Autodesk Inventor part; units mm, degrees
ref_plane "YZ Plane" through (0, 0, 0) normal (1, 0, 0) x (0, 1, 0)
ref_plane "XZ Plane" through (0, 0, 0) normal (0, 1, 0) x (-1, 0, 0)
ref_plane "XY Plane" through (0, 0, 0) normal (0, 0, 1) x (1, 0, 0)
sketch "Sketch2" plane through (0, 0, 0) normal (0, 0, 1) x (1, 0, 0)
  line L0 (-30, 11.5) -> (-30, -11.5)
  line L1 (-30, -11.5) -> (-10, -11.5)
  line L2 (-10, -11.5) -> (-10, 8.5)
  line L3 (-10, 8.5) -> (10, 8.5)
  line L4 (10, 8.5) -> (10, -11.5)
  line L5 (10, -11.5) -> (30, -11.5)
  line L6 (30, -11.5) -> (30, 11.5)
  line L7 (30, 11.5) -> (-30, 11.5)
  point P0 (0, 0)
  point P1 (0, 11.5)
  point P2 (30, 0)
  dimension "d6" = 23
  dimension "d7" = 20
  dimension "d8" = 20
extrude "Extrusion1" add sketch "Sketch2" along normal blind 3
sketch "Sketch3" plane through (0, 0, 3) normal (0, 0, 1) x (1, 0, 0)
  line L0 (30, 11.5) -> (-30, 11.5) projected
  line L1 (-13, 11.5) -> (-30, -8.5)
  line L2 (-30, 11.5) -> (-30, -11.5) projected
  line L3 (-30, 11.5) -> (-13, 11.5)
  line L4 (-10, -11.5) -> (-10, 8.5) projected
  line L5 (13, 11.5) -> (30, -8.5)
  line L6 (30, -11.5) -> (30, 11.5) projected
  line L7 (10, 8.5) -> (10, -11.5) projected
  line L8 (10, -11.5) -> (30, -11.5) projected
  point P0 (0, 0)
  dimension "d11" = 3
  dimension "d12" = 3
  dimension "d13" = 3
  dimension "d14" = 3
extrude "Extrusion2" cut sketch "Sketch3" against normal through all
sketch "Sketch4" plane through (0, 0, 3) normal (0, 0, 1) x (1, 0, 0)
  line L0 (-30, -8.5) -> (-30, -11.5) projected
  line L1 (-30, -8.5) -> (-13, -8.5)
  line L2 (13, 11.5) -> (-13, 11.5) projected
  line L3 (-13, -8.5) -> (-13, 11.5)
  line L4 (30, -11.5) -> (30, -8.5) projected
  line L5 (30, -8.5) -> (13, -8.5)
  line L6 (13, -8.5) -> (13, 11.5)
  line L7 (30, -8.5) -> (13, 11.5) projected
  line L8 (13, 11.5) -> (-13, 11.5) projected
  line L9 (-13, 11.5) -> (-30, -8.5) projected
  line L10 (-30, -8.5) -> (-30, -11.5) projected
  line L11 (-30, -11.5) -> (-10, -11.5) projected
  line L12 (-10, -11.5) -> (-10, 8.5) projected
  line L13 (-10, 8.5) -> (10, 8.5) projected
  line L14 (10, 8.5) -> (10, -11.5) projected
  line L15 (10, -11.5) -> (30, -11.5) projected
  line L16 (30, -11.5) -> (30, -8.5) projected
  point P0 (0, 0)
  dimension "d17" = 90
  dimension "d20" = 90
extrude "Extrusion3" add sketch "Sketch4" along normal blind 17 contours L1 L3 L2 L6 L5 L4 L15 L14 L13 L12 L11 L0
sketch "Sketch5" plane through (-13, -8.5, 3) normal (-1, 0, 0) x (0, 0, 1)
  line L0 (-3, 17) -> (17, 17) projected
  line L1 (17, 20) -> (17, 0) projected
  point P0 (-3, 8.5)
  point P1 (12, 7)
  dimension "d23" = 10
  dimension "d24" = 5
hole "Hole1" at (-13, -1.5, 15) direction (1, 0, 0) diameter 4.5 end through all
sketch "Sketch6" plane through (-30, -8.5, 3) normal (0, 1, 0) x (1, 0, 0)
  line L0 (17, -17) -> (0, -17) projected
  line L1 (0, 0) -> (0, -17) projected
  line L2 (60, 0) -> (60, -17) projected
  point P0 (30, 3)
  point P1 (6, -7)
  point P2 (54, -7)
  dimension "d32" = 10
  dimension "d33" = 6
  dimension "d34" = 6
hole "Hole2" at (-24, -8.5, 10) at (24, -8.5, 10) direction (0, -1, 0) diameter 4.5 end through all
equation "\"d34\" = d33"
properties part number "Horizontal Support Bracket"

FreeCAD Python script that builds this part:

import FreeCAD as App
import Part
import Sketcher
from FreeCAD import Vector

doc = App.newDocument("Part")
params = doc.addObject("Spreadsheet::Sheet", "Params")
for row, (alias, value) in enumerate([
    ("sketch1_width", "20 mm"),
    ("sketch1_height", "23 mm"),
    ("pad1_length", "3 mm"),
    ("sketch2_width", "17 mm"),
    ("sketch2_height", "20 mm"),
    ("sketch3_width", "17 mm"),
    ("sketch3_width2", "20 mm"),
    ("sketch3_height", "3 mm"),
    ("pad2_length", "17 mm"),
    ("sketch4_diameter", "4.5 mm"),
    ("hole_diameter", "4.5 mm"),
    ("sketch5_diameter", "4.5 mm"),
    ("hole2_diameter", "4.5 mm"),
], start=1):
    params.set(f"A{row}", alias)
    params.set(f"B{row}", "=" + value)
    params.setAlias(f"B{row}", alias)

body = doc.addObject("PartDesign::Body", "Body")

# Sketch on XY plane
sketch1 = body.newObject("Sketcher::SketchObject", "Sketch")
sketch1.AttachmentSupport = (doc.getObject("XY_Plane"), [""])
sketch1.MapMode = "FlatFace"
sketch1.addGeometry(Part.LineSegment(Vector(30, 12, 0), Vector(-30, 12, 0)), False)
sketch1.addGeometry(Part.LineSegment(Vector(-30, 12, 0), Vector(-30, -12, 0)), False)
sketch1.addGeometry(Part.LineSegment(Vector(-30, -12, 0), Vector(-10, -12, 0)), False)
sketch1.addGeometry(Part.LineSegment(Vector(-10, -12, 0), Vector(-10, 8, 0)), False)
sketch1.addGeometry(Part.LineSegment(Vector(-10, 8, 0), Vector(10, 8, 0)), False)
sketch1.addGeometry(Part.LineSegment(Vector(10, 8, 0), Vector(10, -12, 0)), False)
sketch1.addGeometry(Part.LineSegment(Vector(10, -12, 0), Vector(30, -12, 0)), False)
sketch1.addGeometry(Part.LineSegment(Vector(30, -12, 0), Vector(30, 12, 0)), False)
sketch1.addConstraint(Sketcher.Constraint("Coincident", 0, 2, 1, 1))
sketch1.addConstraint(Sketcher.Constraint("Coincident", 1, 2, 2, 1))
sketch1.addConstraint(Sketcher.Constraint("Coincident", 2, 2, 3, 1))
sketch1.addConstraint(Sketcher.Constraint("Coincident", 3, 2, 4, 1))
sketch1.addConstraint(Sketcher.Constraint("Coincident", 4, 2, 5, 1))
sketch1.addConstraint(Sketcher.Constraint("Coincident", 5, 2, 6, 1))
sketch1.addConstraint(Sketcher.Constraint("Coincident", 6, 2, 7, 1))
sketch1.addConstraint(Sketcher.Constraint("Coincident", 7, 2, 0, 1))
sketch1.addConstraint(Sketcher.Constraint("Horizontal", 0))
sketch1.addConstraint(Sketcher.Constraint("Vertical", 1))
sketch1.addConstraint(Sketcher.Constraint("Horizontal", 2))
sketch1.addConstraint(Sketcher.Constraint("Vertical", 3))
sketch1.addConstraint(Sketcher.Constraint("Horizontal", 4))
sketch1.addConstraint(Sketcher.Constraint("Vertical", 5))
sketch1.addConstraint(Sketcher.Constraint("Horizontal", 6))
sketch1.addConstraint(Sketcher.Constraint("Vertical", 7))
sketch1.addConstraint(Sketcher.Constraint("Symmetric", 0, 2, 6, 2, -1, 1))
sketch1.addConstraint(Sketcher.Constraint("Symmetric", 2, 2, 5, 2, -2))
sketch1.addConstraint(Sketcher.Constraint("Equal", 2, 4))
sketch1.addConstraint(Sketcher.Constraint("Equal", 6, 3))
sketch1.addConstraint(Sketcher.Constraint("DistanceX", 2, 1, 2, 2, 20.0))
sketch1.addConstraint(Sketcher.Constraint("DistanceY", 1, 2, 1, 1, 23.0))
sketch1.setExpression("Constraints[20]", "Params.sketch1_width")
sketch1.setExpression("Constraints[21]", "Params.sketch1_height")
pad1 = body.newObject("PartDesign::Pad", "Pad")
pad1.Profile = sketch1
pad1.setExpression("Length", "Params.pad1_length")

# Sketch on XY plane
sketch2 = body.newObject("Sketcher::SketchObject", "Sketch001")
sketch2.AttachmentSupport = (doc.getObject("XY_Plane"), [""])
sketch2.MapMode = "FlatFace"
sketch2.AttachmentOffset = App.Placement(Vector(0, 0, 3), App.Rotation())
sketch2.addGeometry(Part.LineSegment(Vector(30, -8, 0), Vector(30, 12, 0)), False)
sketch2.addGeometry(Part.LineSegment(Vector(30, 12, 0), Vector(13, 12, 0)), False)
sketch2.addGeometry(Part.LineSegment(Vector(13, 12, 0), Vector(30, -8, 0)), False)
sketch2.addGeometry(Part.LineSegment(Vector(-30, -8, 0), Vector(-13, 12, 0)), False)
sketch2.addGeometry(Part.LineSegment(Vector(-13, 12, 0), Vector(-30, 12, 0)), False)
sketch2.addGeometry(Part.LineSegment(Vector(-30, 12, 0), Vector(-30, -8, 0)), False)
sketch2.addConstraint(Sketcher.Constraint("Coincident", 0, 2, 1, 1))
sketch2.addConstraint(Sketcher.Constraint("Coincident", 1, 2, 2, 1))
sketch2.addConstraint(Sketcher.Constraint("Coincident", 2, 2, 0, 1))
sketch2.addConstraint(Sketcher.Constraint("Coincident", 3, 2, 4, 1))
sketch2.addConstraint(Sketcher.Constraint("Coincident", 4, 2, 5, 1))
sketch2.addConstraint(Sketcher.Constraint("Coincident", 5, 2, 3, 1))
sketch2.addConstraint(Sketcher.Constraint("Vertical", 0))
sketch2.addConstraint(Sketcher.Constraint("Horizontal", 1))
sketch2.addConstraint(Sketcher.Constraint("Horizontal", 4))
sketch2.addConstraint(Sketcher.Constraint("Vertical", 5))
sketch2.addConstraint(Sketcher.Constraint("Symmetric", 1, 2, 3, 2, -2))
sketch2.addConstraint(Sketcher.Constraint("Symmetric", 2, 2, 5, 2, -2))
sketch2.addConstraint(Sketcher.Constraint("DistanceX", 1, 2, 1, 1, 17.0))
sketch2.addConstraint(Sketcher.Constraint("DistanceY", 0, 1, 0, 2, 20.0))
sketch2.addConstraint(Sketcher.Constraint("DistanceX", -1, 1, 0, 2, 30.0))
sketch2.addConstraint(Sketcher.Constraint("DistanceY", -1, 1, 0, 2, 11.5))
sketch2.setExpression("Constraints[12]", "Params.sketch2_width")
sketch2.setExpression("Constraints[13]", "Params.sketch2_height")
pocket1 = body.newObject("PartDesign::Pocket", "Pocket")
pocket1.Profile = sketch2
pocket1.Type = "ThroughAll"

# Sketch on XY plane
sketch3 = body.newObject("Sketcher::SketchObject", "Sketch002")
sketch3.AttachmentSupport = (doc.getObject("XY_Plane"), [""])
sketch3.MapMode = "FlatFace"
sketch3.AttachmentOffset = App.Placement(Vector(0, 0, 3), App.Rotation())
sketch3.addGeometry(Part.LineSegment(Vector(-13, -8.5, 0), Vector(-30, -8.5, 0)), False)
sketch3.addGeometry(Part.LineSegment(Vector(-30, -8.5, 0), Vector(-30, -11.5, 0)), False)
sketch3.addGeometry(Part.LineSegment(Vector(-30, -11.5, 0), Vector(-10, -11.5, 0)), False)
sketch3.addGeometry(Part.LineSegment(Vector(-10, -11.5, 0), Vector(-10, 8.5, 0)), False)
sketch3.addGeometry(Part.LineSegment(Vector(-10, 8.5, 0), Vector(10, 8.5, 0)), False)
sketch3.addGeometry(Part.LineSegment(Vector(10, 8.5, 0), Vector(10, -11.5, 0)), False)
sketch3.addGeometry(Part.LineSegment(Vector(10, -11.5, 0), Vector(30, -11.5, 0)), False)
sketch3.addGeometry(Part.LineSegment(Vector(30, -11.5, 0), Vector(30, -8.5, 0)), False)
sketch3.addGeometry(Part.LineSegment(Vector(30, -8.5, 0), Vector(13, -8.5, 0)), False)
sketch3.addGeometry(Part.LineSegment(Vector(13, -8.5, 0), Vector(13, 11.5, 0)), False)
sketch3.addGeometry(Part.LineSegment(Vector(13, 11.5, 0), Vector(-13, 11.5, 0)), False)
sketch3.addGeometry(Part.LineSegment(Vector(-13, 11.5, 0), Vector(-13, -8.5, 0)), False)
sketch3.addConstraint(Sketcher.Constraint("Coincident", 0, 2, 1, 1))
sketch3.addConstraint(Sketcher.Constraint("Coincident", 1, 2, 2, 1))
sketch3.addConstraint(Sketcher.Constraint("Coincident", 2, 2, 3, 1))
sketch3.addConstraint(Sketcher.Constraint("Coincident", 3, 2, 4, 1))
sketch3.addConstraint(Sketcher.Constraint("Coincident", 4, 2, 5, 1))
sketch3.addConstraint(Sketcher.Constraint("Coincident", 5, 2, 6, 1))
sketch3.addConstraint(Sketcher.Constraint("Coincident", 6, 2, 7, 1))
sketch3.addConstraint(Sketcher.Constraint("Coincident", 7, 2, 8, 1))
sketch3.addConstraint(Sketcher.Constraint("Coincident", 8, 2, 9, 1))
sketch3.addConstraint(Sketcher.Constraint("Coincident", 9, 2, 10, 1))
sketch3.addConstraint(Sketcher.Constraint("Coincident", 10, 2, 11, 1))
sketch3.addConstraint(Sketcher.Constraint("Coincident", 11, 2, 0, 1))
sketch3.addConstraint(Sketcher.Constraint("Horizontal", 0))
sketch3.addConstraint(Sketcher.Constraint("Vertical", 1))
sketch3.addConstraint(Sketcher.Constraint("Horizontal", 2))
sketch3.addConstraint(Sketcher.Constraint("Vertical", 3))
sketch3.addConstraint(Sketcher.Constraint("Horizontal", 4))
sketch3.addConstraint(Sketcher.Constraint("Vertical", 5))
sketch3.addConstraint(Sketcher.Constraint("Horizontal", 6))
sketch3.addConstraint(Sketcher.Constraint("Vertical", 7))
sketch3.addConstraint(Sketcher.Constraint("Horizontal", 8))
sketch3.addConstraint(Sketcher.Constraint("Vertical", 9))
sketch3.addConstraint(Sketcher.Constraint("Horizontal", 10))
sketch3.addConstraint(Sketcher.Constraint("Vertical", 11))
sketch3.addConstraint(Sketcher.Constraint("Symmetric", 2, 2, 5, 2, -2))
sketch3.addConstraint(Sketcher.Constraint("Symmetric", 0, 2, 7, 2, -2))
sketch3.addConstraint(Sketcher.Constraint("Equal", 2, 4))
sketch3.addConstraint(Sketcher.Constraint("Equal", 0, 8))
sketch3.addConstraint(Sketcher.Constraint("Equal", 6, 3))
sketch3.addConstraint(Sketcher.Constraint("Equal", 5, 9))
sketch3.addConstraint(Sketcher.Constraint("DistanceX", 0, 2, 0, 1, 17.0))
sketch3.addConstraint(Sketcher.Constraint("DistanceX", 2, 1, 2, 2, 20.0))
sketch3.addConstraint(Sketcher.Constraint("DistanceY", 1, 2, 1, 1, 3.0))
sketch3.addConstraint(Sketcher.Constraint("DistanceY", 0, 2, -1, 1, 8.5))
sketch3.setExpression("Constraints[30]", "Params.sketch3_width")
sketch3.setExpression("Constraints[31]", "Params.sketch3_width2")
sketch3.setExpression("Constraints[32]", "Params.sketch3_height")
pad2 = body.newObject("PartDesign::Pad", "Pad001")
pad2.Profile = sketch3
pad2.setExpression("Length", "Params.pad2_length")

# Sketch on YZ plane
sketch4 = body.newObject("Sketcher::SketchObject", "Sketch003")
sketch4.AttachmentSupport = (doc.getObject("YZ_Plane"), [""])
sketch4.MapMode = "FlatFace"
sketch4.AttachmentOffset = App.Placement(Vector(0, 0, -13), App.Rotation())
sketch4.addGeometry(Part.Circle(Vector(-1.5, 15, 0), Vector(0, 0, 1), 2.2), False)
sketch4.addConstraint(Sketcher.Constraint("Diameter", 0, 4.5))
sketch4.addConstraint(Sketcher.Constraint("DistanceY", -1, 1, 0, 3, 15.0))
sketch4.addConstraint(Sketcher.Constraint("DistanceX", 0, 3, -1, 1, 1.5))
sketch4.setExpression("Constraints[0]", "Params.sketch4_diameter")
doc.recompute()
hole = body.newObject("PartDesign::Hole", "Hole")
hole.Profile = sketch4
hole.ThreadType = "None"
hole.setExpression("Diameter", "Params.hole_diameter")
hole.DepthType = "ThroughAll"
hole.Reversed = True

# Sketch on XZ plane
sketch5 = body.newObject("Sketcher::SketchObject", "Sketch004")
sketch5.AttachmentSupport = (doc.getObject("XZ_Plane"), [""])
sketch5.MapMode = "FlatFace"
sketch5.AttachmentOffset = App.Placement(Vector(0, 0, 8.5), App.Rotation())
sketch5.addGeometry(Part.Circle(Vector(-24, 10, 0), Vector(0, 0, 1), 2.2), False)
sketch5.addGeometry(Part.Circle(Vector(24, 10, 0), Vector(0, 0, 1), 2.2), False)
sketch5.addConstraint(Sketcher.Constraint("Equal", 0, 1))
sketch5.addConstraint(Sketcher.Constraint("Symmetric", 0, 3, 1, 3, -2))
sketch5.addConstraint(Sketcher.Constraint("Diameter", 0, 4.5))
sketch5.addConstraint(Sketcher.Constraint("DistanceX", 0, 3, -1, 1, 24.0))
sketch5.addConstraint(Sketcher.Constraint("DistanceY", -1, 1, 0, 3, 10.0))
sketch5.setExpression("Constraints[2]", "Params.sketch5_diameter")
doc.recompute()
hole2 = body.newObject("PartDesign::Hole", "Hole001")
hole2.Profile = sketch5
hole2.ThreadType = "None"
hole2.setExpression("Diameter", "Params.hole2_diameter")
hole2.DepthType = "ThroughAll"
hole2.Reversed = True

doc.recompute()
